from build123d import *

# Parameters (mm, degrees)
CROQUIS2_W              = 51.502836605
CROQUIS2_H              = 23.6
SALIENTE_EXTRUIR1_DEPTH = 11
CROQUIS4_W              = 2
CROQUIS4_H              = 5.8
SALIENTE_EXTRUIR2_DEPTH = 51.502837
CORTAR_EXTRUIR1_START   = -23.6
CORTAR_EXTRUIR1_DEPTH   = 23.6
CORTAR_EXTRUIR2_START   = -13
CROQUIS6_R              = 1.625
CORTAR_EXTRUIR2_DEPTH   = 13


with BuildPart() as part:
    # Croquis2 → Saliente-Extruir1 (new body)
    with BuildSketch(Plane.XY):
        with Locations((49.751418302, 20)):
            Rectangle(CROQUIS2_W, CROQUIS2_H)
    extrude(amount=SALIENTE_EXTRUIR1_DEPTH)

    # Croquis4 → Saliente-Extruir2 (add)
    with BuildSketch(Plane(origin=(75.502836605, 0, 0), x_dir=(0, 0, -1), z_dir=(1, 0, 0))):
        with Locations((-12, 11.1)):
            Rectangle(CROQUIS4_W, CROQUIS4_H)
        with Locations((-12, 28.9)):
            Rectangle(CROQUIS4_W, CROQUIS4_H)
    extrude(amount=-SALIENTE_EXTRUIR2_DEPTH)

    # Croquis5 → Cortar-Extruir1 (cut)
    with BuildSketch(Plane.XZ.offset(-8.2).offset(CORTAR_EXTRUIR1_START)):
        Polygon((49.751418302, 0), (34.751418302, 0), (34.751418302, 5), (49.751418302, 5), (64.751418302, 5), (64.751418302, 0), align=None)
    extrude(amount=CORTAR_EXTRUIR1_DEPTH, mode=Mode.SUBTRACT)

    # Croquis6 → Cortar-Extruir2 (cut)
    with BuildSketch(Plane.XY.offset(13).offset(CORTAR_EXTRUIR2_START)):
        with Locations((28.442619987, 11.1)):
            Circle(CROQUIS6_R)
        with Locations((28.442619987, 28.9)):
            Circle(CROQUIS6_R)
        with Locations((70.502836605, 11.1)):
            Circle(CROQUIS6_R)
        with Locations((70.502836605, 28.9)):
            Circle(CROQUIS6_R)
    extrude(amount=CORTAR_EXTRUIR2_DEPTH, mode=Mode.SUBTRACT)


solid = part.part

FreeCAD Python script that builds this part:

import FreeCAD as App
import Part
import Sketcher

V = App.Vector


def add_polygon(sketch, points):
    """Adds a closed chain of lines whose ends are joined by coincident constraints."""
    first, n = sketch.GeometryCount, len(points)
    for a, b in zip(points, points[1:] + points[:1]):
        sketch.addGeometry(Part.LineSegment(App.Vector(*a, 0), App.Vector(*b, 0)), False)
    for i in range(n):
        sketch.addConstraint(Sketcher.Constraint("Coincident", first + i, 2, first + (i + 1) % n, 1))

doc = App.newDocument("Part")
body = doc.addObject("PartDesign::Body", "Body")

sketch1 = body.newObject("Sketcher::SketchObject", "Sketch")
sketch1.AttachmentSupport = (doc.getObject("XY_Plane"), [""])
sketch1.MapMode = "FlatFace"
add_polygon(sketch1, [(24, 32), (24, 8), (76, 8), (76, 32)])
sketch1.addConstraint(Sketcher.Constraint("Vertical", 0))
sketch1.addConstraint(Sketcher.Constraint("Horizontal", 1))
sketch1.addConstraint(Sketcher.Constraint("Vertical", 2))
sketch1.addConstraint(Sketcher.Constraint("Horizontal", 3))
sketch1.addConstraint(Sketcher.Constraint("DistanceY", 0, 2, 0, 1, 23.6))
sketch1.addConstraint(Sketcher.Constraint("DistanceX", -1, 1, 0, 2, 24.0))
sketch1.addConstraint(Sketcher.Constraint("DistanceY", -1, 1, 0, 2, 8.2))
sketch1.addConstraint(Sketcher.Constraint("DistanceX", 1, 1, 1, 2, 51.502837))
pad1 = body.newObject("PartDesign::Pad", "Pad")
pad1.Profile = sketch1
pad1.Length = 11

sketch2 = body.newObject("Sketcher::SketchObject", "Sketch001")
sketch2.AttachmentSupport = (doc.getObject("YZ_Plane"), [""])
sketch2.MapMode = "FlatFace"
sketch2.AttachmentOffset = App.Placement(V(0, 0, 75.502837), App.Rotation())
add_polygon(sketch2, [(14, 13), (8.2, 13), (8.2, 11), (14, 11)])
add_polygon(sketch2, [(31.8, 13), (26, 13), (26, 11), (31.8, 11)])
sketch2.addConstraint(Sketcher.Constraint("Horizontal", 0))
sketch2.addConstraint(Sketcher.Constraint("Vertical", 1))
sketch2.addConstraint(Sketcher.Constraint("Horizontal", 2))
sketch2.addConstraint(Sketcher.Constraint("Vertical", 3))
sketch2.addConstraint(Sketcher.Constraint("Horizontal", 4))
sketch2.addConstraint(Sketcher.Constraint("Vertical", 5))
sketch2.addConstraint(Sketcher.Constraint("Horizontal", 6))
sketch2.addConstraint(Sketcher.Constraint("Vertical", 7))
sketch2.addConstraint(Sketcher.Constraint("Horizontal", 3, 2, 4, 2))
sketch2.addConstraint(Sketcher.Constraint("Horizontal", 2, 2, 5, 2))
sketch2.addConstraint(Sketcher.Constraint("Equal", 2, 4))
sketch2.addConstraint(Sketcher.Constraint("DistanceY", 1, 2, 1, 1, 2.0))
sketch2.addConstraint(Sketcher.Constraint("DistanceX", 0, 2, 0, 1, 5.8))
sketch2.addConstraint(Sketcher.Constraint("DistanceY", -1, 1, 0, 2, 13.0))
sketch2.addConstraint(Sketcher.Constraint("DistanceX", -1, 1, 2, 2, 14.0))
sketch2.addConstraint(Sketcher.Constraint("DistanceX", -1, 1, 4, 2, 26.0))
pad2 = body.newObject("PartDesign::Pad", "Pad001")
pad2.Profile = sketch2
pad2.Length = 51.502837
pad2.Reversed = True

sketch3 = body.newObject("Sketcher::SketchObject", "Sketch002")
sketch3.AttachmentSupport = (doc.getObject("XZ_Plane"), [""])
sketch3.MapMode = "FlatFace"
sketch3.AttachmentOffset = App.Placement(V(0, 0, -31.8), App.Rotation())
add_polygon(sketch3, [(35, 0), (65, 0), (65, 5), (35, 5)])
sketch3.addConstraint(Sketcher.Constraint("Horizontal", 0))
sketch3.addConstraint(Sketcher.Constraint("Vertical", 1))
sketch3.addConstraint(Sketcher.Constraint("Horizontal", 2))
sketch3.addConstraint(Sketcher.Constraint("Vertical", 3))
sketch3.addConstraint(Sketcher.Constraint("PointOnObject", 0, 2, -1))
sketch3.addConstraint(Sketcher.Constraint("DistanceX", 0, 1, 0, 2, 30.0))
sketch3.addConstraint(Sketcher.Constraint("DistanceY", 1, 1, 1, 2, 5.0))
sketch3.addConstraint(Sketcher.Constraint("DistanceX", -1, 1, 0, 2, 64.751418))
pocket1 = body.newObject("PartDesign::Pocket", "Pocket")
pocket1.Profile = sketch3
pocket1.Length = 23.6
pocket1.Reversed = True

sketch4 = body.newObject("Sketcher::SketchObject", "Sketch003")
sketch4.AttachmentSupport = (doc.getObject("XY_Plane"), [""])
sketch4.MapMode = "FlatFace"
sketch4.addGeometry(Part.Circle(V(28.4, 11.1, 0), V(0, 0, 1), 1.6), False)
sketch4.addGeometry(Part.Circle(V(28.4, 28.9, 0), V(0, 0, 1), 1.6), False)
sketch4.addGeometry(Part.Circle(V(70.5, 11.1, 0), V(0, 0, 1), 1.6), False)
sketch4.addGeometry(Part.Circle(V(70.5, 28.9, 0), V(0, 0, 1), 1.6), False)
sketch4.addConstraint(Sketcher.Constraint("Equal", 0, 1))
sketch4.addConstraint(Sketcher.Constraint("Equal", 1, 2))
sketch4.addConstraint(Sketcher.Constraint("Equal", 2, 3))
sketch4.addConstraint(Sketcher.Constraint("Horizontal", 0, 3, 2, 3))
sketch4.addConstraint(Sketcher.Constraint("Horizontal", 1, 3, 3, 3))
sketch4.addConstraint(Sketcher.Constraint("Vertical", 0, 3, 1, 3))
sketch4.addConstraint(Sketcher.Constraint("Vertical", 2, 3, 3, 3))
sketch4.addConstraint(Sketcher.Constraint("Diameter", 0, 3.25))
sketch4.addConstraint(Sketcher.Constraint("DistanceY", -1, 1, 0, 3, 11.1))
sketch4.addConstraint(Sketcher.Constraint("DistanceY", -1, 1, 1, 3, 28.9))
sketch4.addConstraint(Sketcher.Constraint("DistanceX", -1, 1, 0, 3, 28.44262))
sketch4.addConstraint(Sketcher.Constraint("DistanceX", -1, 1, 2, 3, 70.502837))
pocket2 = body.newObject("PartDesign::Pocket", "Pocket001")
pocket2.Profile = sketch4
pocket2.Length = 13
pocket2.Reversed = True

doc.recompute()
